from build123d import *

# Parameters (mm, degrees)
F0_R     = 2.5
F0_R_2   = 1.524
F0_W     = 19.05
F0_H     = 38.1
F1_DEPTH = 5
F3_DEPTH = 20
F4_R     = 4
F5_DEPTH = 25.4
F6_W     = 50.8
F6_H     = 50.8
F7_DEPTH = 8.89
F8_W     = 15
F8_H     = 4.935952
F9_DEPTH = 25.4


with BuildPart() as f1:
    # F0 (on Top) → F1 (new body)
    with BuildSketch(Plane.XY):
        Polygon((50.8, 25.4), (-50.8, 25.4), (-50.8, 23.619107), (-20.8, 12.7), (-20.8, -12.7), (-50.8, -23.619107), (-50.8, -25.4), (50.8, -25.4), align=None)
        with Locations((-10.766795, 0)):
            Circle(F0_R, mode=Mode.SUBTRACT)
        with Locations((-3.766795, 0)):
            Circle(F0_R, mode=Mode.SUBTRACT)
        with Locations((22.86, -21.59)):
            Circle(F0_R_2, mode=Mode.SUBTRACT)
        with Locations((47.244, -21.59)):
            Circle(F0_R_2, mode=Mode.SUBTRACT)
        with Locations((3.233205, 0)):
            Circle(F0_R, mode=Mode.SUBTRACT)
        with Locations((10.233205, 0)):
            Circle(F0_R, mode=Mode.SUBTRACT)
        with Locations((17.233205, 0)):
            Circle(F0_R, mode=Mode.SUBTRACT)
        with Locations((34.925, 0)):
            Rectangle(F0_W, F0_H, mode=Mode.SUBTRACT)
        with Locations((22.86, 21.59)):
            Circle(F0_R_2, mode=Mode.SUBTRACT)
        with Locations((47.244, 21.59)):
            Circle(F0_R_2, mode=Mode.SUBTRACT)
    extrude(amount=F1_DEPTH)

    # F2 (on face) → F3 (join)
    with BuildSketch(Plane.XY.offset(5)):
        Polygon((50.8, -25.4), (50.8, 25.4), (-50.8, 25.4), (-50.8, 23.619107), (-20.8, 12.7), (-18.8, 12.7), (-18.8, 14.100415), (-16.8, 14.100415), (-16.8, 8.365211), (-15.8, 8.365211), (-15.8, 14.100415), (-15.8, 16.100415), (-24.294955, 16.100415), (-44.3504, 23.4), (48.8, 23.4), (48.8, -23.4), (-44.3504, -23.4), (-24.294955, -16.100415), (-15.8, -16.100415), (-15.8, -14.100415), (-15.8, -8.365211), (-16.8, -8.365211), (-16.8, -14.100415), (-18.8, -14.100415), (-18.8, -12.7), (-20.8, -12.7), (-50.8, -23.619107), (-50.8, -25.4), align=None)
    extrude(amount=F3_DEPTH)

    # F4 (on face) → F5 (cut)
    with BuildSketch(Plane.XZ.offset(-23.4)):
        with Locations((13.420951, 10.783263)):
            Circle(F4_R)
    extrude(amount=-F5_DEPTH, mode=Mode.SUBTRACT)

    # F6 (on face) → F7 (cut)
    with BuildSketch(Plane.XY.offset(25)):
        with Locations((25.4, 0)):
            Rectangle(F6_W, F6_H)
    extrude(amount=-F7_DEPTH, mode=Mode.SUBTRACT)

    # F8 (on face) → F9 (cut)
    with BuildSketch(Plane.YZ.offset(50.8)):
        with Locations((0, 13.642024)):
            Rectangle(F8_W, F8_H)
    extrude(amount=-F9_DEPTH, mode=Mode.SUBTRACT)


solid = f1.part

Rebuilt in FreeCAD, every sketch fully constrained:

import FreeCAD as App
import Part
import Sketcher
Q = App.Units.Quantity

doc = App.newDocument("Part")
body = doc.addObject("PartDesign::Body", "Body")

sketch1 = body.newObject("Sketcher::SketchObject", "Sketch")
sketch1.AttachmentSupport = (doc.getObject("XY_Plane"), [""])
sketch1.MapMode = "FlatFace"
sketch1.addGeometry(Part.LineSegment(App.Vector(50.8, 25.4, 0), App.Vector(-50.8, 25.4, 0)), False)
sketch1.addGeometry(Part.LineSegment(App.Vector(-50.8, 25.4, 0), App.Vector(-50.8, 23.6, 0)), False)
sketch1.addGeometry(Part.LineSegment(App.Vector(-50.8, 23.6, 0), App.Vector(-20.8, 12.7, 0)), False)
sketch1.addGeometry(Part.LineSegment(App.Vector(-20.8, 12.7, 0), App.Vector(-20.8, -12.7, 0)), False)
sketch1.addGeometry(Part.LineSegment(App.Vector(-20.8, -12.7, 0), App.Vector(-50.8, -23.6, 0)), False)
sketch1.addGeometry(Part.LineSegment(App.Vector(-50.8, -23.6, 0), App.Vector(-50.8, -25.4, 0)), False)
sketch1.addGeometry(Part.LineSegment(App.Vector(-50.8, -25.4, 0), App.Vector(50.8, -25.4, 0)), False)
sketch1.addGeometry(Part.LineSegment(App.Vector(50.8, -25.4, 0), App.Vector(50.8, 25.4, 0)), False)
sketch1.addGeometry(Part.Circle(App.Vector(-10.8, 0, 0), App.Vector(0, 0, 1), 2.5), False)
sketch1.addGeometry(Part.Circle(App.Vector(-3.8, 0, 0), App.Vector(0, 0, 1), 2.5), False)
sketch1.addGeometry(Part.Circle(App.Vector(3.2, 0, 0), App.Vector(0, 0, 1), 2.5), False)
sketch1.addGeometry(Part.Circle(App.Vector(10.2, 0, 0), App.Vector(0, 0, 1), 2.5), False)
sketch1.addGeometry(Part.Circle(App.Vector(17.2, 0, 0), App.Vector(0, 0, 1), 2.5), False)
sketch1.addGeometry(Part.Circle(App.Vector(22.9, -21.6, 0), App.Vector(0, 0, 1), 1.5), False)
sketch1.addGeometry(Part.Circle(App.Vector(47.2, -21.6, 0), App.Vector(0, 0, 1), 1.5), False)
sketch1.addGeometry(Part.LineSegment(App.Vector(44.5, -19.1, 0), App.Vector(25.4, -19.1, 0)), False)
sketch1.addGeometry(Part.LineSegment(App.Vector(25.4, -19.1, 0), App.Vector(25.4, 19.1, 0)), False)
sketch1.addGeometry(Part.LineSegment(App.Vector(25.4, 19.1, 0), App.Vector(44.5, 19.1, 0)), False)
sketch1.addGeometry(Part.LineSegment(App.Vector(44.5, 19.1, 0), App.Vector(44.5, -19.1, 0)), False)
sketch1.addGeometry(Part.Circle(App.Vector(22.9, 21.6, 0), App.Vector(0, 0, 1), 1.5), False)
sketch1.addGeometry(Part.Circle(App.Vector(47.2, 21.6, 0), App.Vector(0, 0, 1), 1.5), False)
sketch1.addConstraint(Sketcher.Constraint("Coincident", 0, 2, 1, 1))
sketch1.addConstraint(Sketcher.Constraint("Coincident", 1, 2, 2, 1))
sketch1.addConstraint(Sketcher.Constraint("Coincident", 2, 2, 3, 1))
sketch1.addConstraint(Sketcher.Constraint("Coincident", 3, 2, 4, 1))
sketch1.addConstraint(Sketcher.Constraint("Coincident", 4, 2, 5, 1))
sketch1.addConstraint(Sketcher.Constraint("Coincident", 5, 2, 6, 1))
sketch1.addConstraint(Sketcher.Constraint("Coincident", 6, 2, 7, 1))
sketch1.addConstraint(Sketcher.Constraint("Coincident", 7, 2, 0, 1))
sketch1.addConstraint(Sketcher.Constraint("Coincident", 15, 2, 16, 1))
sketch1.addConstraint(Sketcher.Constraint("Coincident", 16, 2, 17, 1))
sketch1.addConstraint(Sketcher.Constraint("Coincident", 17, 2, 18, 1))
sketch1.addConstraint(Sketcher.Constraint("Coincident", 18, 2, 15, 1))
sketch1.addConstraint(Sketcher.Constraint("Horizontal", 0))
sketch1.addConstraint(Sketcher.Constraint("Vertical", 1))
sketch1.addConstraint(Sketcher.Constraint("Vertical", 3))
sketch1.addConstraint(Sketcher.Constraint("Vertical", 5))
sketch1.addConstraint(Sketcher.Constraint("Horizontal", 6))
sketch1.addConstraint(Sketcher.Constraint("Vertical", 7))
sketch1.addConstraint(Sketcher.Constraint("Horizontal", 15))
sketch1.addConstraint(Sketcher.Constraint("Vertical", 16))
sketch1.addConstraint(Sketcher.Constraint("Horizontal", 17))
sketch1.addConstraint(Sketcher.Constraint("Vertical", 18))
sketch1.addConstraint(Sketcher.Constraint("Equal", 8, 9))
sketch1.addConstraint(Sketcher.Constraint("Equal", 9, 10))
sketch1.addConstraint(Sketcher.Constraint("Equal", 10, 11))
sketch1.addConstraint(Sketcher.Constraint("Equal", 11, 12))
sketch1.addConstraint(Sketcher.Constraint("Equal", 13, 14))
sketch1.addConstraint(Sketcher.Constraint("Equal", 14, 19))
sketch1.addConstraint(Sketcher.Constraint("Equal", 19, 20))
sketch1.addConstraint(Sketcher.Constraint("Symmetric", 0, 2, 6, 2, -1, 1))
sketch1.addConstraint(Sketcher.Constraint("Symmetric", 13, 3, 19, 3, -1))
sketch1.addConstraint(Sketcher.Constraint("Symmetric", 14, 3, 20, 3, -1))
sketch1.addConstraint(Sketcher.Constraint("Symmetric", 1, 2, 4, 2, -1))
sketch1.addConstraint(Sketcher.Constraint("PointOnObject", 8, 3, -1))
sketch1.addConstraint(Sketcher.Constraint("PointOnObject", 9, 3, -1))
sketch1.addConstraint(Sketcher.Constraint("PointOnObject", 10, 3, -1))
sketch1.addConstraint(Sketcher.Constraint("PointOnObject", 11, 3, -1))
sketch1.addConstraint(Sketcher.Constraint("PointOnObject", 12, 3, -1))
sketch1.addConstraint(Sketcher.Constraint("Horizontal", 13, 3, 14, 3))
sketch1.addConstraint(Sketcher.Constraint("Equal", 2, 4))
sketch1.addConstraint(Sketcher.Constraint("Diameter", 8, 5.0))
sketch1.addConstraint(Sketcher.Constraint("Angle", 2, Q("-20 deg")))
sketch1.addConstraint(Sketcher.Constraint("Diameter", 13, 3.048))
sketch1.addConstraint(Sketcher.Constraint("DistanceX", 0, 2, 0, 1, 101.6))
sketch1.addConstraint(Sketcher.Constraint("DistanceY", 3, 2, 3, 1, 25.4))
sketch1.addConstraint(Sketcher.Constraint("DistanceY", 7, 1, 7, 2, 50.8))
sketch1.addConstraint(Sketcher.Constraint("DistanceY", 16, 1, 16, 2, 38.1))
sketch1.addConstraint(Sketcher.Constraint("DistanceX", 8, 3, 9, 3, 7.0))
sketch1.addConstraint(Sketcher.Constraint("DistanceX", 9, 3, 10, 3, 7.0))
sketch1.addConstraint(Sketcher.Constraint("DistanceX", 10, 3, 11, 3, 7.0))
sketch1.addConstraint(Sketcher.Constraint("DistanceX", 11, 3, 12, 3, 7.0))
sketch1.addConstraint(Sketcher.Constraint("DistanceX", 1, 2, 2, 2, 30.0))
sketch1.addConstraint(Sketcher.Constraint("DistanceX", 15, 2, 15, 1, 19.05))
sketch1.addConstraint(Sketcher.Constraint("DistanceX", -1, 1, 15, 2, 25.4))
sketch1.addConstraint(Sketcher.Constraint("DistanceX", -1, 1, 13, 3, 22.86))
sketch1.addConstraint(Sketcher.Constraint("DistanceY", 13, 3, -1, 1, 21.59))
sketch1.addConstraint(Sketcher.Constraint("DistanceY", 15, 2, -1, 1, 19.05))
sketch1.addConstraint(Sketcher.Constraint("DistanceX", -1, 1, 14, 3, 47.244))
sketch1.addConstraint(Sketcher.Constraint("DistanceX", 8, 3, -1, 1, 10.766795))
pad1 = body.newObject("PartDesign::Pad", "Pad")
pad1.Profile = sketch1
pad1.Length = 5

sketch2 = body.newObject("Sketcher::SketchObject", "Sketch001")
sketch2.AttachmentSupport = (doc.getObject("XY_Plane"), [""])
sketch2.MapMode = "FlatFace"
sketch2.AttachmentOffset = App.Placement(App.Vector(0, 0, 5), App.Rotation())
sketch2.addGeometry(Part.LineSegment(App.Vector(50.8, -25.4, 0), App.Vector(50.8, 25.4, 0)), False)
sketch2.addGeometry(Part.LineSegment(App.Vector(50.8, 25.4, 0), App.Vector(-50.8, 25.4, 0)), False)
sketch2.addGeometry(Part.LineSegment(App.Vector(-50.8, 25.4, 0), App.Vector(-50.8, 23.6, 0)), False)
sketch2.addGeometry(Part.LineSegment(App.Vector(-50.8, 23.6, 0), App.Vector(-20.8, 12.7, 0)), False)
sketch2.addGeometry(Part.LineSegment(App.Vector(-20.8, 12.7, 0), App.Vector(-18.8, 12.7, 0)), False)
sketch2.addGeometry(Part.LineSegment(App.Vector(-18.8, 12.7, 0), App.Vector(-18.8, 14.1, 0)), False)
sketch2.addGeometry(Part.LineSegment(App.Vector(-18.8, 14.1, 0), App.Vector(-16.8, 14.1, 0)), False)
sketch2.addGeometry(Part.LineSegment(App.Vector(-16.8, 14.1, 0), App.Vector(-16.8, 8.4, 0)), False)
sketch2.addGeometry(Part.LineSegment(App.Vector(-16.8, 8.4, 0), App.Vector(-15.8, 8.4, 0)), False)
sketch2.addGeometry(Part.LineSegment(App.Vector(-15.8, 8.4, 0), App.Vector(-15.8, 16.1, 0)), False)
sketch2.addGeometry(Part.LineSegment(App.Vector(-15.8, 16.1, 0), App.Vector(-24.3, 16.1, 0)), False)
sketch2.addGeometry(Part.LineSegment(App.Vector(-24.3, 16.1, 0), App.Vector(-44.4, 23.4, 0)), False)
sketch2.addGeometry(Part.LineSegment(App.Vector(-44.4, 23.4, 0), App.Vector(48.8, 23.4, 0)), False)
sketch2.addGeometry(Part.LineSegment(App.Vector(48.8, 23.4, 0), App.Vector(48.8, -23.4, 0)), False)
sketch2.addGeometry(Part.LineSegment(App.Vector(48.8, -23.4, 0), App.Vector(-44.4, -23.4, 0)), False)
sketch2.addGeometry(Part.LineSegment(App.Vector(-44.4, -23.4, 0), App.Vector(-24.3, -16.1, 0)), False)
sketch2.addGeometry(Part.LineSegment(App.Vector(-24.3, -16.1, 0), App.Vector(-15.8, -16.1, 0)), False)
sketch2.addGeometry(Part.LineSegment(App.Vector(-15.8, -16.1, 0), App.Vector(-15.8, -8.4, 0)), False)
sketch2.addGeometry(Part.LineSegment(App.Vector(-15.8, -8.4, 0), App.Vector(-16.8, -8.4, 0)), False)
sketch2.addGeometry(Part.LineSegment(App.Vector(-16.8, -8.4, 0), App.Vector(-16.8, -14.1, 0)), False)
sketch2.addGeometry(Part.LineSegment(App.Vector(-16.8, -14.1, 0), App.Vector(-18.8, -14.1, 0)), False)
sketch2.addGeometry(Part.LineSegment(App.Vector(-18.8, -14.1, 0), App.Vector(-18.8, -12.7, 0)), False)
sketch2.addGeometry(Part.LineSegment(App.Vector(-18.8, -12.7, 0), App.Vector(-20.8, -12.7, 0)), False)
sketch2.addGeometry(Part.LineSegment(App.Vector(-20.8, -12.7, 0), App.Vector(-50.8, -23.6, 0)), False)
sketch2.addGeometry(Part.LineSegment(App.Vector(-50.8, -23.6, 0), App.Vector(-50.8, -25.4, 0)), False)
sketch2.addGeometry(Part.LineSegment(App.Vector(-50.8, -25.4, 0), App.Vector(50.8, -25.4, 0)), False)
sketch2.addConstraint(Sketcher.Constraint("Coincident", 0, 2, 1, 1))
sketch2.addConstraint(Sketcher.Constraint("Coincident", 1, 2, 2, 1))
sketch2.addConstraint(Sketcher.Constraint("Coincident", 2, 2, 3, 1))
sketch2.addConstraint(Sketcher.Constraint("Coincident", 3, 2, 4, 1))
sketch2.addConstraint(Sketcher.Constraint("Coincident", 4, 2, 5, 1))
sketch2.addConstraint(Sketcher.Constraint("Coincident", 5, 2, 6, 1))
sketch2.addConstraint(Sketcher.Constraint("Coincident", 6, 2, 7, 1))
sketch2.addConstraint(Sketcher.Constraint("Coincident", 7, 2, 8, 1))
sketch2.addConstraint(Sketcher.Constraint("Coincident", 8, 2, 9, 1))
sketch2.addConstraint(Sketcher.Constraint("Coincident", 9, 2, 10, 1))
sketch2.addConstraint(Sketcher.Constraint("Coincident", 10, 2, 11, 1))
sketch2.addConstraint(Sketcher.Constraint("Coincident", 11, 2, 12, 1))
sketch2.addConstraint(Sketcher.Constraint("Coincident", 12, 2, 13, 1))
sketch2.addConstraint(Sketcher.Constraint("Coincident", 13, 2, 14, 1))
sketch2.addConstraint(Sketcher.Constraint("Coincident", 14, 2, 15, 1))
sketch2.addConstraint(Sketcher.Constraint("Coincident", 15, 2, 16, 1))
sketch2.addConstraint(Sketcher.Constraint("Coincident", 16, 2, 17, 1))
sketch2.addConstraint(Sketcher.Constraint("Coincident", 17, 2, 18, 1))
sketch2.addConstraint(Sketcher.Constraint("Coincident", 18, 2, 19, 1))
sketch2.addConstraint(Sketcher.Constraint("Coincident", 19, 2, 20, 1))
sketch2.addConstraint(Sketcher.Constraint("Coincident", 20, 2, 21, 1))
sketch2.addConstraint(Sketcher.Constraint("Coincident", 21, 2, 22, 1))
sketch2.addConstraint(Sketcher.Constraint("Coincident", 22, 2, 23, 1))
sketch2.addConstraint(Sketcher.Constraint("Coincident", 23, 2, 24, 1))
sketch2.addConstraint(Sketcher.Constraint("Coincident", 24, 2, 25, 1))
sketch2.addConstraint(Sketcher.Constraint("Coincident", 25, 2, 0, 1))
sketch2.addConstraint(Sketcher.Constraint("Vertical", 0))
sketch2.addConstraint(Sketcher.Constraint("Horizontal", 1))
sketch2.addConstraint(Sketcher.Constraint("Vertical", 2))
sketch2.addConstraint(Sketcher.Constraint("Horizontal", 4))
sketch2.addConstraint(Sketcher.Constraint("Vertical", 5))
sketch2.addConstraint(Sketcher.Constraint("Horizontal", 6))
sketch2.addConstraint(Sketcher.Constraint("Vertical", 7))
sketch2.addConstraint(Sketcher.Constraint("Horizontal", 8))
sketch2.addConstraint(Sketcher.Constraint("Vertical", 9))
sketch2.addConstraint(Sketcher.Constraint("Horizontal", 10))
sketch2.addConstraint(Sketcher.Constraint("Horizontal", 12))
sketch2.addConstraint(Sketcher.Constraint("Vertical", 13))
sketch2.addConstraint(Sketcher.Constraint("Horizontal", 14))
sketch2.addConstraint(Sketcher.Constraint("Horizontal", 16))
sketch2.addConstraint(Sketcher.Constraint("Vertical", 17))
sketch2.addConstraint(Sketcher.Constraint("Horizontal", 18))
sketch2.addConstraint(Sketcher.Constraint("Vertical", 19))
sketch2.addConstraint(Sketcher.Constraint("Horizontal", 20))
sketch2.addConstraint(Sketcher.Constraint("Vertical", 21))
sketch2.addConstraint(Sketcher.Constraint("Horizontal", 22))
sketch2.addConstraint(Sketcher.Constraint("Vertical", 24))
sketch2.addConstraint(Sketcher.Constraint("Horizontal", 25))
sketch2.addConstraint(Sketcher.Constraint("Symmetric", 0, 2, 24, 2, -1, 1))
sketch2.addConstraint(Sketcher.Constraint("Symmetric", 11, 2, 14, 2, -1))
sketch2.addConstraint(Sketcher.Constraint("Symmetric", 10, 2, 15, 2, -1))
sketch2.addConstraint(Sketcher.Constraint("Symmetric", 8, 2, 17, 2, -1))
sketch2.addConstraint(Sketcher.Constraint("Symmetric", 6, 2, 19, 2, -1))
sketch2.addConstraint(Sketcher.Constraint("Symmetric", 4, 2, 21, 2, -1))
sketch2.addConstraint(Sketcher.Constraint("Symmetric", 2, 2, 23, 2, -1))
sketch2.addConstraint(Sketcher.Constraint("Parallel", 3, 11))
sketch2.addConstraint(Sketcher.Constraint("Parallel", 15, 23))
sketch2.addConstraint(Sketcher.Constraint("Equal", 4, 6))
sketch2.addConstraint(Sketcher.Constraint("DistanceX", 4, 1, 4, 2, 2.0))
sketch2.addConstraint(Sketcher.Constraint("DistanceX", 8, 1, 8, 2, 1.0))
sketch2.addConstraint(Sketcher.Constraint("Angle", 3, Q("-20 deg")))
sketch2.addConstraint(Sketcher.Constraint("DistanceX", 1, 2, 1, 1, 101.6))
sketch2.addConstraint(Sketcher.Constraint("DistanceY", 0, 1, 0, 2, 50.8))
sketch2.addConstraint(Sketcher.Constraint("DistanceY", 13, 2, 13, 1, 46.8))
sketch2.addConstraint(Sketcher.Constraint("DistanceX", 2, 2, 3, 2, 30.0))
sketch2.addConstraint(Sketcher.Constraint("DistanceY", 6, 2, 9, 2, 2.0))
sketch2.addConstraint(Sketcher.Constraint("DistanceX", 12, 2, 0, 2, 2.0))
sketch2.addConstraint(Sketcher.Constraint("DistanceY", -1, 1, 3, 2, 12.7))
sketch2.addConstraint(Sketcher.Constraint("DistanceX", 12, 1, 12, 2, 93.1504))
sketch2.addConstraint(Sketcher.Constraint("Distance", 11, 21.342559))
sketch2.addConstraint(Sketcher.Constraint("DistanceY", 7, 2, 7, 1, 5.735204))
pad2 = body.newObject("PartDesign::Pad", "Pad001")
pad2.Profile = sketch2
pad2.Length = 20

sketch3 = body.newObject("Sketcher::SketchObject", "Sketch002")
sketch3.AttachmentSupport = (doc.getObject("XZ_Plane"), [""])
sketch3.MapMode = "FlatFace"
sketch3.AttachmentOffset = App.Placement(App.Vector(0, 0, -23.4), App.Rotation())
sketch3.addGeometry(Part.Circle(App.Vector(13.4, 10.8, 0), App.Vector(0, 0, 1), 4), False)
sketch3.addConstraint(Sketcher.Constraint("Diameter", 0, 8.0))
sketch3.addConstraint(Sketcher.Constraint("DistanceX", -1, 1, 0, 3, 13.420951))
sketch3.addConstraint(Sketcher.Constraint("DistanceY", -1, 1, 0, 3, 10.783263))
pocket1 = body.newObject("PartDesign::Pocket", "Pocket")
pocket1.Profile = sketch3
pocket1.Length = 25.4

sketch4 = body.newObject("Sketcher::SketchObject", "Sketch003")
sketch4.AttachmentSupport = (doc.getObject("XY_Plane"), [""])
sketch4.MapMode = "FlatFace"
sketch4.AttachmentOffset = App.Placement(App.Vector(0, 0, 25), App.Rotation())
sketch4.addGeometry(Part.LineSegment(App.Vector(0, 25, 0), App.Vector(0, -25, 0)), False)
sketch4.addGeometry(Part.LineSegment(App.Vector(0, -25, 0), App.Vector(51, -25, 0)), False)
sketch4.addGeometry(Part.LineSegment(App.Vector(51, -25, 0), App.Vector(51, 25, 0)), False)
sketch4.addGeometry(Part.LineSegment(App.Vector(51, 25, 0), App.Vector(0, 25, 0)), False)
sketch4.addConstraint(Sketcher.Constraint("Coincident", 0, 2, 1, 1))
sketch4.addConstraint(Sketcher.Constraint("Coincident", 1, 2, 2, 1))
sketch4.addConstraint(Sketcher.Constraint("Coincident", 2, 2, 3, 1))
sketch4.addConstraint(Sketcher.Constraint("Coincident", 3, 2, 0, 1))
sketch4.addConstraint(Sketcher.Constraint("Vertical", 0))
sketch4.addConstraint(Sketcher.Constraint("Horizontal", 1))
sketch4.addConstraint(Sketcher.Constraint("Vertical", 2))
sketch4.addConstraint(Sketcher.Constraint("Horizontal", 3))
sketch4.addConstraint(Sketcher.Constraint("Symmetric", 0, 2, 3, 2, -1, 1))
sketch4.addConstraint(Sketcher.Constraint("Equal", 3, 0))
sketch4.addConstraint(Sketcher.Constraint("DistanceX", 1, 1, 1, 2, 50.8))
pocket2 = body.newObject("PartDesign::Pocket", "Pocket001")
pocket2.Profile = sketch4
pocket2.Length = 8.89

sketch5 = body.newObject("Sketcher::SketchObject", "Sketch004")
sketch5.AttachmentSupport = (doc.getObject("YZ_Plane"), [""])
sketch5.MapMode = "FlatFace"
sketch5.AttachmentOffset = App.Placement(App.Vector(0, 0, 50.8), App.Rotation())
sketch5.addGeometry(Part.LineSegment(App.Vector(-7.5, 16.1, 0), App.Vector(-7.5, 11.2, 0)), False)
sketch5.addGeometry(Part.LineSegment(App.Vector(-7.5, 11.2, 0), App.Vector(7.5, 11.2, 0)), False)
sketch5.addGeometry(Part.LineSegment(App.Vector(7.5, 11.2, 0), App.Vector(7.5, 16.1, 0)), False)
sketch5.addGeometry(Part.LineSegment(App.Vector(7.5, 16.1, 0), App.Vector(-7.5, 16.1, 0)), False)
sketch5.addConstraint(Sketcher.Constraint("Coincident", 0, 2, 1, 1))
sketch5.addConstraint(Sketcher.Constraint("Coincident", 1, 2, 2, 1))
sketch5.addConstraint(Sketcher.Constraint("Coincident", 2, 2, 3, 1))
sketch5.addConstraint(Sketcher.Constraint("Coincident", 3, 2, 0, 1))
sketch5.addConstraint(Sketcher.Constraint("Vertical", 0))
sketch5.addConstraint(Sketcher.Constraint("Horizontal", 1))
sketch5.addConstraint(Sketcher.Constraint("Vertical", 2))
sketch5.addConstraint(Sketcher.Constraint("Horizontal", 3))
sketch5.addConstraint(Sketcher.Constraint("DistanceX", 1, 1, 1, 2, 15.0))
sketch5.addConstraint(Sketcher.Constraint("DistanceX", 0, 2, -1, 1, 7.5))
sketch5.addConstraint(Sketcher.Constraint("DistanceY", -1, 1, 2, 2, 16.11))
sketch5.addConstraint(Sketcher.Constraint("DistanceY", 0, 2, 0, 1, 4.935952))
pocket3 = body.newObject("PartDesign::Pocket", "Pocket002")
pocket3.Profile = sketch5
pocket3.Length = 25.4

doc.recompute()
